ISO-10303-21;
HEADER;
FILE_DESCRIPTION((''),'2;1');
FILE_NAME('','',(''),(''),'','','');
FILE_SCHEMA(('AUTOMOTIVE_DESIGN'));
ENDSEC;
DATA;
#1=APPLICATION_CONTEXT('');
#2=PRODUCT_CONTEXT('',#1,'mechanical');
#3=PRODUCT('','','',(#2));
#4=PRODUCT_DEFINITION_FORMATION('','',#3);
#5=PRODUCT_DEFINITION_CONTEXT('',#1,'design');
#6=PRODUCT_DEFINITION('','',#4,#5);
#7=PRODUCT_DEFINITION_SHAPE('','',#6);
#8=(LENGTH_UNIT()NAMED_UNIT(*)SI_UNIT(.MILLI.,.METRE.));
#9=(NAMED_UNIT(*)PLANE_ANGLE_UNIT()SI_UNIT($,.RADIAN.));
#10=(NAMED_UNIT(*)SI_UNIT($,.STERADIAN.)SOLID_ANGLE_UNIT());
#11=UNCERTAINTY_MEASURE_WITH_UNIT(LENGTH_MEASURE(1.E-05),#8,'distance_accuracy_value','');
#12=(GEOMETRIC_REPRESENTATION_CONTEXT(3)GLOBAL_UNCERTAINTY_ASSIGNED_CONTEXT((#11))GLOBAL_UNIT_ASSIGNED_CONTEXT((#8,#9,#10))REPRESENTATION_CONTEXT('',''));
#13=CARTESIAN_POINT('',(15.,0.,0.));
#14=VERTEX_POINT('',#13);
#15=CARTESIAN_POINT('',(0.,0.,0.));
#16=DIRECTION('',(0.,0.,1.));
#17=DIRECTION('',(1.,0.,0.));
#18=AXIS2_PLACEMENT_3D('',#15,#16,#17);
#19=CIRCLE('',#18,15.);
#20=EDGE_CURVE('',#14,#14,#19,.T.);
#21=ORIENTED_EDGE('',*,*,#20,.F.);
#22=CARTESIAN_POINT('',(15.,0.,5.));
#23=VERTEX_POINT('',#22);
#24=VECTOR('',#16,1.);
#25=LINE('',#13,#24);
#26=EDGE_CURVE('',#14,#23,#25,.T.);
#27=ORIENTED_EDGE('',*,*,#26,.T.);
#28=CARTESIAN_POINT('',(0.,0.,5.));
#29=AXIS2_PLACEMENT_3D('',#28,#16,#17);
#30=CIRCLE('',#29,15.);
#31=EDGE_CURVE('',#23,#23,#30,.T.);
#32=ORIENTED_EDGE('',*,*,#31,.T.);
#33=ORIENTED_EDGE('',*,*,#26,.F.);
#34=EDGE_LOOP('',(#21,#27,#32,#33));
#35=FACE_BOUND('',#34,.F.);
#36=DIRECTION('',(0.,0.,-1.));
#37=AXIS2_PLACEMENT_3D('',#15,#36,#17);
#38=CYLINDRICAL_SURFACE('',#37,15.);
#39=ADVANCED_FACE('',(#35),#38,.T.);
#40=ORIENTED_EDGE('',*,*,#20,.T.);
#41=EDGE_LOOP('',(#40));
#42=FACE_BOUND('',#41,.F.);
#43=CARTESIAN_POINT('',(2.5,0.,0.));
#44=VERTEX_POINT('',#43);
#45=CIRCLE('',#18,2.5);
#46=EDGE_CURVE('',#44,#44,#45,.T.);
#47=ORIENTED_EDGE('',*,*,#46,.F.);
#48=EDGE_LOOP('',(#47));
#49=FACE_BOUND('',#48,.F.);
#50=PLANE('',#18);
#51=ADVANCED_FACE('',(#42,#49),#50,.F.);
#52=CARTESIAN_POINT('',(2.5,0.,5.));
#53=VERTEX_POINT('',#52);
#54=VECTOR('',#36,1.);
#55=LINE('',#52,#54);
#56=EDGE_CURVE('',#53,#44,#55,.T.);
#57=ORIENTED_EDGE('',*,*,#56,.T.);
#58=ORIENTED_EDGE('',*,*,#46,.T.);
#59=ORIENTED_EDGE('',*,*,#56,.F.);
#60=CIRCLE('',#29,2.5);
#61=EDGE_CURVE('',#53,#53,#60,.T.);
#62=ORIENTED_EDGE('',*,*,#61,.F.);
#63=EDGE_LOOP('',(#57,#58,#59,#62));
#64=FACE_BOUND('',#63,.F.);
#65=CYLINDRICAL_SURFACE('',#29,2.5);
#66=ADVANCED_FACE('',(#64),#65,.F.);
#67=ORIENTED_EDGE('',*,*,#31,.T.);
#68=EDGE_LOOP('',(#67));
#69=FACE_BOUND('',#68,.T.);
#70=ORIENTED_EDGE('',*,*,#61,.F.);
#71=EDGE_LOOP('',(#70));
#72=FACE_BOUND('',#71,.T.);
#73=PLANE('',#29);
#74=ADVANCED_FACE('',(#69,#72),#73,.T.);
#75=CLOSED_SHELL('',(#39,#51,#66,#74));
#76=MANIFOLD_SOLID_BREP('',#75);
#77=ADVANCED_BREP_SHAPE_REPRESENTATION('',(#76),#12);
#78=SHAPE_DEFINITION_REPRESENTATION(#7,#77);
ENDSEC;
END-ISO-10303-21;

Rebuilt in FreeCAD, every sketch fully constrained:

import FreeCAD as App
import Part
import Sketcher

V = App.Vector

doc = App.newDocument("Part")
body = doc.addObject("PartDesign::Body", "Body")

sketch1 = doc.addObject("Sketcher::SketchObject", "Sketch")
body.addObject(sketch1)
sketch1.AttachmentSupport = (doc.XY_Plane, [""])
sketch1.MapMode = "FlatFace"
sketch1.addGeometry(Part.Circle(V(0, 0, 0), V(0, 0, 1), 15), False)
sketch1.addConstraint(Sketcher.Constraint("Coincident", 0, 3, -1, 1))
sketch1.addConstraint(Sketcher.Constraint("Diameter", 0, 30.0))
pad1 = doc.addObject("PartDesign::Pad", "Pad")
body.addObject(pad1)
pad1.Profile = sketch1
pad1.Length = 5

sketch2 = doc.addObject("Sketcher::SketchObject", "Sketch001")
body.addObject(sketch2)
sketch2.AttachmentSupport = (doc.XY_Plane, [""])
sketch2.MapMode = "FlatFace"
sketch2.AttachmentOffset = App.Placement(V(0, 0, 5), App.Rotation())
sketch2.addGeometry(Part.Circle(V(0, 0, 0), V(0, 0, 1), 2.5), False)
sketch2.addConstraint(Sketcher.Constraint("Coincident", 0, 3, -1, 1))
sketch2.addConstraint(Sketcher.Constraint("Diameter", 0, 5.0))
pocket1 = doc.addObject("PartDesign::Pocket", "Pocket")
body.addObject(pocket1)
pocket1.Profile = sketch2
pocket1.Length = 5

doc.recompute()
